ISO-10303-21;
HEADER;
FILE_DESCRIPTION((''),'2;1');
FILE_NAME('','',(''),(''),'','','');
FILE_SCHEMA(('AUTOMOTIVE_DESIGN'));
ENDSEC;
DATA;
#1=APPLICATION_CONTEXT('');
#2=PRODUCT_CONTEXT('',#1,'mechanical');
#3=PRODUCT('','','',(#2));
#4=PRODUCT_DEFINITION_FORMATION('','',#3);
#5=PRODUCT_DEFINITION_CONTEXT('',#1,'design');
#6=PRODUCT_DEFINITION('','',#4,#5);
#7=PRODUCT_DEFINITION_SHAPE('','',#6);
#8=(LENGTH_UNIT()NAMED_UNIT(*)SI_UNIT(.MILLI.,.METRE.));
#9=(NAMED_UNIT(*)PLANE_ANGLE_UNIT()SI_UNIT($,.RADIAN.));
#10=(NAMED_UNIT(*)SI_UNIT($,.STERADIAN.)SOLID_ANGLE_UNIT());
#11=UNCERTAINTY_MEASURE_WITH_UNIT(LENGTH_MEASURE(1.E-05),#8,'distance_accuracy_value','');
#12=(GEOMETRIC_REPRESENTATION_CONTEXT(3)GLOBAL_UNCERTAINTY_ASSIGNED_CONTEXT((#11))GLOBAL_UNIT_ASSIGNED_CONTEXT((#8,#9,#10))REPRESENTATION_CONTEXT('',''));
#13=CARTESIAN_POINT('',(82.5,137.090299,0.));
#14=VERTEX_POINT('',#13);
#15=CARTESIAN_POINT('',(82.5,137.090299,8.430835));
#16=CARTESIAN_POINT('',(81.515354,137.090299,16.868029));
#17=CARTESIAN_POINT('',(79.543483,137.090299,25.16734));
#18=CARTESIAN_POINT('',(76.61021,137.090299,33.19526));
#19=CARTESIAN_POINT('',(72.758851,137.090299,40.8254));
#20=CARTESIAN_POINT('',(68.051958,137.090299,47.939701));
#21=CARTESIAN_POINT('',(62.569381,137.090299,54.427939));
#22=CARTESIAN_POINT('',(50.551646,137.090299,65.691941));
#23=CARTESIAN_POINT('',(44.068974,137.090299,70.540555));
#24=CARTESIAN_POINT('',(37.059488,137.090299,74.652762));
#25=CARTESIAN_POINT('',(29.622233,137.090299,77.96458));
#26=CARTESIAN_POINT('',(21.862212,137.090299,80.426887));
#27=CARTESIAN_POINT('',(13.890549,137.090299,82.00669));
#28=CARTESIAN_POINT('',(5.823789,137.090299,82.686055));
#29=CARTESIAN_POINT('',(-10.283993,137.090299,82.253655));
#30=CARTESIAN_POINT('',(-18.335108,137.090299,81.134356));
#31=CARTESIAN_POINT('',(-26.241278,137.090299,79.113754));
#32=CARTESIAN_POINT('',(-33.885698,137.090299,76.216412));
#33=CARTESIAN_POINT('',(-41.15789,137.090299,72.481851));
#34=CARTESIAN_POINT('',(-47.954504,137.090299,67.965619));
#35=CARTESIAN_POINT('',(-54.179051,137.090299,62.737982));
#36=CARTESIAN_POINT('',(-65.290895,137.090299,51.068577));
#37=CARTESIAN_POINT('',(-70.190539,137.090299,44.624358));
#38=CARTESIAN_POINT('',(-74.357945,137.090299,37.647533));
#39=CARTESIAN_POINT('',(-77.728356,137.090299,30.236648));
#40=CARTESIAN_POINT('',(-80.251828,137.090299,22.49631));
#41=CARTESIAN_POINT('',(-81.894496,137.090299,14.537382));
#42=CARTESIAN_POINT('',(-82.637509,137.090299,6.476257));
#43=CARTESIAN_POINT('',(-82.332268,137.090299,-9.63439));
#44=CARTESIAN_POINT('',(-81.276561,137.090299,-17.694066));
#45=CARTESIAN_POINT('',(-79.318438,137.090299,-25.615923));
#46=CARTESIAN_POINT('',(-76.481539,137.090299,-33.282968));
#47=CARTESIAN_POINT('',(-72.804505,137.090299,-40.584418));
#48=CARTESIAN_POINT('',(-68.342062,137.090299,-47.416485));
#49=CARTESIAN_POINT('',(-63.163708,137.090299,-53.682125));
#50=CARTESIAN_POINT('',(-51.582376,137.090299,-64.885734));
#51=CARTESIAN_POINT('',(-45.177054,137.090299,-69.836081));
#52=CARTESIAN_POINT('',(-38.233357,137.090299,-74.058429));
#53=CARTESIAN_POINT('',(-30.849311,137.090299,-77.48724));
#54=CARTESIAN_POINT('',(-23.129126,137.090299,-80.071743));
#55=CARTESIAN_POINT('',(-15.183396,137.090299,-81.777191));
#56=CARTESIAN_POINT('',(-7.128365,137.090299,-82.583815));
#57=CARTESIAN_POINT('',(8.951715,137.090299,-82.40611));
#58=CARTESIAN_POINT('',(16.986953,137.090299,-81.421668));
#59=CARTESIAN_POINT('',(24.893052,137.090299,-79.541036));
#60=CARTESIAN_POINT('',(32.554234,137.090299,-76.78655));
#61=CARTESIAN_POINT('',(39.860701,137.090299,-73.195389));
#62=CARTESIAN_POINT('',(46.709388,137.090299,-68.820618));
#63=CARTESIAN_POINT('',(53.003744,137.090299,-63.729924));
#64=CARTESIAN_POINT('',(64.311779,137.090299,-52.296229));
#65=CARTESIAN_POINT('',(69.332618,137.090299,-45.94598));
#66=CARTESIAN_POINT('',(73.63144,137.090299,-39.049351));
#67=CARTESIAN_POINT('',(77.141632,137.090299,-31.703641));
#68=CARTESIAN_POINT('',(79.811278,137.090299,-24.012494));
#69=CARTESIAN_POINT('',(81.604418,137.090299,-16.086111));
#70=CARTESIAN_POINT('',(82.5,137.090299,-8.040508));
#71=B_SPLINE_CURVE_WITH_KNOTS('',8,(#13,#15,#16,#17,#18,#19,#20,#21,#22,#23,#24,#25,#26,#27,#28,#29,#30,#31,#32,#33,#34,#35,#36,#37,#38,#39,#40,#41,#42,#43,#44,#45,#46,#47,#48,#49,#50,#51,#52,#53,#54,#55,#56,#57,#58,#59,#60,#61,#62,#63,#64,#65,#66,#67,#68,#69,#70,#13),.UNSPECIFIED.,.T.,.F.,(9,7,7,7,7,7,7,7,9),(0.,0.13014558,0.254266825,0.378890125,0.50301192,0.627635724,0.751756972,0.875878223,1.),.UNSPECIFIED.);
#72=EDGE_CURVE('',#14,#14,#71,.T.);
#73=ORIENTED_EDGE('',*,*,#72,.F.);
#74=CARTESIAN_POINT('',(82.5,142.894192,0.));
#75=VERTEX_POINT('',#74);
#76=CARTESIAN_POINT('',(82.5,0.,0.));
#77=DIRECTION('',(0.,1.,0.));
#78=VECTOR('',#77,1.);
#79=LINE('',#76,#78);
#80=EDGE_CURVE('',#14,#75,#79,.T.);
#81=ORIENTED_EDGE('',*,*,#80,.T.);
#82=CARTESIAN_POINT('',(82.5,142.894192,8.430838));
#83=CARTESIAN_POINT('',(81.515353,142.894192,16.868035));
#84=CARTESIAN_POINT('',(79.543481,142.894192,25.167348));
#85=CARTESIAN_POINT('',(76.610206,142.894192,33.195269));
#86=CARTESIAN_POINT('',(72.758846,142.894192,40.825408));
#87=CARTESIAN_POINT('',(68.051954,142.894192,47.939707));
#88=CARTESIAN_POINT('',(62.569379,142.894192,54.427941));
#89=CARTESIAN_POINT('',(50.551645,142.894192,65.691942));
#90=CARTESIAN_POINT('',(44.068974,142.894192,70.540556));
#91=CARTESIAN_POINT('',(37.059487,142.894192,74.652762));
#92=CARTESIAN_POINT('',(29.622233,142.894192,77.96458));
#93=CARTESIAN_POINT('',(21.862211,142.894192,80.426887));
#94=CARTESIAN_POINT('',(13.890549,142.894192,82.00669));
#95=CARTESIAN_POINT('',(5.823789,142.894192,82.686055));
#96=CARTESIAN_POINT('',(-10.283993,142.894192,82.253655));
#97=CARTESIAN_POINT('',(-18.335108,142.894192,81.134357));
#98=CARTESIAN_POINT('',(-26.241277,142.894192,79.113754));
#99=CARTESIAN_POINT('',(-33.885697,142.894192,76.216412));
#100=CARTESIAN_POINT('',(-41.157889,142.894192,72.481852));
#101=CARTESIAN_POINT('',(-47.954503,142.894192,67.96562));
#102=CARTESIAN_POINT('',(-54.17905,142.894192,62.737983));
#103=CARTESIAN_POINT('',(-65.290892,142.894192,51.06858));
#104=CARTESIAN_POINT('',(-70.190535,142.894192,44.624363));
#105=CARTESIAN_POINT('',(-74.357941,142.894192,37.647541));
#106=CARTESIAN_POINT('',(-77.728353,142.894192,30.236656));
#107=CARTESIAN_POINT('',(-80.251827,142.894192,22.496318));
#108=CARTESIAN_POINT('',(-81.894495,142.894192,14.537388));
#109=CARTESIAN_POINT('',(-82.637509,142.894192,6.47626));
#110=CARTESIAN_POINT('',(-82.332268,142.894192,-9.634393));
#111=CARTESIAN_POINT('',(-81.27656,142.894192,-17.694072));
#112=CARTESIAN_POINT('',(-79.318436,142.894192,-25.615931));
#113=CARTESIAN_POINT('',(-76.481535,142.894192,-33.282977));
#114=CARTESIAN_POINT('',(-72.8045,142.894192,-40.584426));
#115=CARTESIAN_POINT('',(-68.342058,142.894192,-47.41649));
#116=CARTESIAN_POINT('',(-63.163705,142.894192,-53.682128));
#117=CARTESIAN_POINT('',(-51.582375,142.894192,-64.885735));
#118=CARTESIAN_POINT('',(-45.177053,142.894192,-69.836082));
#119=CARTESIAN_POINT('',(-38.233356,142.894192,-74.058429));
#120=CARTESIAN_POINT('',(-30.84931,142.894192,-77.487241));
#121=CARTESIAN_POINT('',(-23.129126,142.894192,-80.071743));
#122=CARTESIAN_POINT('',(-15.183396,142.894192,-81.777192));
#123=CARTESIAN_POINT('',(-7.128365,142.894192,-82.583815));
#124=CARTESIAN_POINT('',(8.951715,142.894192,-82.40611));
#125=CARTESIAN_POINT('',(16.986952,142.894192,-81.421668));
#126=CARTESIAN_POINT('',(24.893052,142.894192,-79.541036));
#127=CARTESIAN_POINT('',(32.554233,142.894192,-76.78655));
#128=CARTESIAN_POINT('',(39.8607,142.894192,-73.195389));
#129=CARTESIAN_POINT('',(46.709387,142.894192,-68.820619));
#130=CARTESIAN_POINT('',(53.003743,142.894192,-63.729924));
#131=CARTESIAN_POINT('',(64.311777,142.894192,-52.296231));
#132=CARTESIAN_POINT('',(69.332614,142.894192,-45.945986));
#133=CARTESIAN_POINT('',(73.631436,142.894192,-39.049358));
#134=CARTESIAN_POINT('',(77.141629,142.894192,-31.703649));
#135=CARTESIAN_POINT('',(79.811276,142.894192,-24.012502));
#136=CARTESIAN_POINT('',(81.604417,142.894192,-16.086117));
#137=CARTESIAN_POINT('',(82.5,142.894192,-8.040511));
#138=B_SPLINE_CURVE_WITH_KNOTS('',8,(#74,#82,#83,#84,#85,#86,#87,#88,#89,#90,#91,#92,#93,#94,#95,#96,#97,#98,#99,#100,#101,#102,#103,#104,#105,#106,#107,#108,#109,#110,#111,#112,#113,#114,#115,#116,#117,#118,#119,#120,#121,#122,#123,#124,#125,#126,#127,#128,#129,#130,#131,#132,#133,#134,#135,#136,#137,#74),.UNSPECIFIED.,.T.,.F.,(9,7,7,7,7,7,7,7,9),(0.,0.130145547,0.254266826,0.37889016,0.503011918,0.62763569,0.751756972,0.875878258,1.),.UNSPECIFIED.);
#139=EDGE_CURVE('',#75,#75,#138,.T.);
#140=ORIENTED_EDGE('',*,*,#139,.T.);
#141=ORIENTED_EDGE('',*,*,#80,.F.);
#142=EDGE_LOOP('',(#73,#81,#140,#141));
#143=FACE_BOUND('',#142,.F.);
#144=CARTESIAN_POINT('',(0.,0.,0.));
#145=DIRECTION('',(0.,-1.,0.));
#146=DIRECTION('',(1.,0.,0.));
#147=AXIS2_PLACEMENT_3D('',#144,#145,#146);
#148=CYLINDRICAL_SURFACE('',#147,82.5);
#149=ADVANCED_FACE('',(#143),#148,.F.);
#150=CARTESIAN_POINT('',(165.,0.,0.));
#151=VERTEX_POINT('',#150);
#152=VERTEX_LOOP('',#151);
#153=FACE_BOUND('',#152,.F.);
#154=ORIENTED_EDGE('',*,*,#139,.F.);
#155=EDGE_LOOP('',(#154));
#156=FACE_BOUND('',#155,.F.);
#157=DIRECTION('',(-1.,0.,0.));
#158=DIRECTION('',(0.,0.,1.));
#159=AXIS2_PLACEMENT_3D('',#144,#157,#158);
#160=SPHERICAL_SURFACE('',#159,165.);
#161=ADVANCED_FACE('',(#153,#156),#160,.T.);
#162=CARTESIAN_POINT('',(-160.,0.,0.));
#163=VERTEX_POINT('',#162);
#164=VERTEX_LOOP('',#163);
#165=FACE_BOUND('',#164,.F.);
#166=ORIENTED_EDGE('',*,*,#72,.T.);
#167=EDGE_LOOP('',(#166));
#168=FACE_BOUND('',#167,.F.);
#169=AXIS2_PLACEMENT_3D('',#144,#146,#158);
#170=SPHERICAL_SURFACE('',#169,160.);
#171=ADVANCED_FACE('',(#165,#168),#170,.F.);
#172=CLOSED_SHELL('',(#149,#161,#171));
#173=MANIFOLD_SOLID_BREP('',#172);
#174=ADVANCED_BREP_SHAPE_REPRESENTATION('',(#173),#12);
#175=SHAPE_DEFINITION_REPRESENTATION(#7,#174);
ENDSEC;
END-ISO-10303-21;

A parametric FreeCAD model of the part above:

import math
import FreeCAD as App
import Part
import Sketcher

V = App.Vector

doc = App.newDocument("Part")
body = doc.addObject("PartDesign::Body", "Body")

# Sketch on XZ plane
sketch1 = doc.addObject("Sketcher::SketchObject", "Sketch")
body.addObject(sketch1)
sketch1.AttachmentSupport = (doc.XZ_Plane, [""])
sketch1.MapMode = "FlatFace"
sketch1.addGeometry([
    Part.ArcOfCircle(Part.Circle(V(0, 0, 0), V(0, 0, 1), 160), math.radians(0), math.radians(180)),
    Part.LineSegment(V(160, 0, 0), V(165, 0, 0)),
    Part.ArcOfCircle(Part.Circle(V(0, 0, 0), V(0, 0, 1), 165), math.radians(0), math.radians(180)),
    Part.LineSegment(V(-165, 0, 0), V(-160, 0, 0)),
], False)
sketch1.addConstraint([
    Sketcher.Constraint("Coincident", 0, 1, 1, 1),
    Sketcher.Constraint("Coincident", 1, 2, 2, 1),
    Sketcher.Constraint("Coincident", 2, 2, 3, 1),
    Sketcher.Constraint("Coincident", 3, 2, 0, 2),
    Sketcher.Constraint("Horizontal", 1),
    Sketcher.Constraint("Horizontal", 3),
    Sketcher.Constraint("Coincident", 0, 3, -1, 1),
    Sketcher.Constraint("Coincident", 2, 3, -1, 1),
    Sketcher.Constraint("PointOnObject", 0, 1, -1),
    Sketcher.Constraint("PointOnObject", 2, 2, -1),
    Sketcher.Constraint("Radius", 0, 160.0),
    Sketcher.Constraint("Radius", 2, 165.0),
])
revolution = doc.addObject("PartDesign::Revolution", "Revolution")
body.addObject(revolution)
revolution.Profile = sketch1
revolution.ReferenceAxis = (sketch1, ["H_Axis"])
revolution.Angle = 360

# Sketch on XZ plane
sketch2 = doc.addObject("Sketcher::SketchObject", "Sketch001")
body.addObject(sketch2)
sketch2.AttachmentSupport = (doc.XZ_Plane, [""])
sketch2.MapMode = "FlatFace"
sketch2.addGeometry(Part.Circle(V(0, 0, 0), V(0, 0, 1), 82.5), False)
sketch2.addConstraint([
    Sketcher.Constraint("Coincident", 0, 3, -1, 1),
    Sketcher.Constraint("Diameter", 0, 165.0),
])
pocket1 = doc.addObject("PartDesign::Pocket", "Pocket")
body.addObject(pocket1)
pocket1.Profile = sketch2
pocket1.Type = "ThroughAll"

doc.recompute()
